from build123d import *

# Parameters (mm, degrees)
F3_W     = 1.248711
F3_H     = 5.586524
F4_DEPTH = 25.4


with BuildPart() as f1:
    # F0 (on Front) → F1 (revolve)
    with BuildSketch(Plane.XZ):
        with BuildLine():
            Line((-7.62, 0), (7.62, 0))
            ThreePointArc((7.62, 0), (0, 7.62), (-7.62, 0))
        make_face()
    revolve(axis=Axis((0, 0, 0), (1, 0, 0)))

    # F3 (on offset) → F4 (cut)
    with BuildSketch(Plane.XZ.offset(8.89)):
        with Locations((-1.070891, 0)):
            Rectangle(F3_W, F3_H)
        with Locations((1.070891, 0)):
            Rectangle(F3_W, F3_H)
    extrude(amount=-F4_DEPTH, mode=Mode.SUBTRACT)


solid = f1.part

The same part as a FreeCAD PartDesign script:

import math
import FreeCAD as App
import Part
import Sketcher
from FreeCAD import Vector
Q = App.Units.Quantity

doc = App.newDocument("Part")
body = doc.addObject("PartDesign::Body", "Body")

sketch1 = doc.addObject("Sketcher::SketchObject", "Sketch")
body.addObject(sketch1)
sketch1.AttachmentSupport = (doc.XZ_Plane, [""])
sketch1.MapMode = "FlatFace"
sketch1.addGeometry([
    Part.LineSegment(Vector(-8, 0, 0), Vector(8, 0, 0)),
    Part.ArcOfCircle(Part.Circle(Vector(0, 0, 0), Vector(0, 0, 1), 8), math.radians(0), math.radians(180)),
], False)
sketch1.addConstraint([
    Sketcher.Constraint("Coincident", 0, 1, 1, 2),
    Sketcher.Constraint("Coincident", 1, 1, 0, 2),
    Sketcher.Constraint("Horizontal", 0),
    Sketcher.Constraint("Coincident", 1, 3, -1, 1),
    Sketcher.Constraint("PointOnObject", 0, 1, -1),
    Sketcher.Constraint("Radius", 1, Q("0.3 in")),
])
revolution = doc.addObject("PartDesign::Revolution", "Revolution")
body.addObject(revolution)
revolution.Profile = sketch1
revolution.ReferenceAxis = (sketch1, ["H_Axis"])
revolution.Angle = 360

sketch2 = doc.addObject("Sketcher::SketchObject", "Sketch001")
body.addObject(sketch2)
sketch2.AttachmentSupport = (doc.XZ_Plane, [""])
sketch2.MapMode = "FlatFace"
sketch2.AttachmentOffset = App.Placement(Vector(0, 0, 0.35 * 25.4), App.Rotation())
sketch2.addGeometry([
    Part.LineSegment(Vector(-1.7, 2.8, 0), Vector(-1.7, -2.8, 0)),
    Part.LineSegment(Vector(-1.7, -2.8, 0), Vector(-0.4, -2.8, 0)),
    Part.LineSegment(Vector(-0.4, -2.8, 0), Vector(-0.4, 2.8, 0)),
    Part.LineSegment(Vector(-0.4, 2.8, 0), Vector(-1.7, 2.8, 0)),
    Part.LineSegment(Vector(0.4, 2.8, 0), Vector(0.4, -2.8, 0)),
    Part.LineSegment(Vector(0.4, -2.8, 0), Vector(1.7, -2.8, 0)),
    Part.LineSegment(Vector(1.7, -2.8, 0), Vector(1.7, 2.8, 0)),
    Part.LineSegment(Vector(1.7, 2.8, 0), Vector(0.4, 2.8, 0)),
], False)
sketch2.addConstraint([
    Sketcher.Constraint("Coincident", 0, 2, 1, 1),
    Sketcher.Constraint("Coincident", 1, 2, 2, 1),
    Sketcher.Constraint("Coincident", 2, 2, 3, 1),
    Sketcher.Constraint("Coincident", 3, 2, 0, 1),
    Sketcher.Constraint("Coincident", 4, 2, 5, 1),
    Sketcher.Constraint("Coincident", 5, 2, 6, 1),
    Sketcher.Constraint("Coincident", 6, 2, 7, 1),
    Sketcher.Constraint("Coincident", 7, 2, 4, 1),
    Sketcher.Constraint("Vertical", 0),
    Sketcher.Constraint("Horizontal", 1),
    Sketcher.Constraint("Vertical", 2),
    Sketcher.Constraint("Horizontal", 3),
    Sketcher.Constraint("Vertical", 4),
    Sketcher.Constraint("Horizontal", 5),
    Sketcher.Constraint("Vertical", 6),
    Sketcher.Constraint("Horizontal", 7),
    Sketcher.Constraint("Symmetric", 2, 2, 4, 2, -1, 1),
    Sketcher.Constraint("Symmetric", 0, 2, 6, 2, -1, 1),
    Sketcher.Constraint("Horizontal", 1, 2, 4, 2),
    Sketcher.Constraint("DistanceX", 1, 1, 1, 2, 1.248711),
    Sketcher.Constraint("DistanceY", 0, 2, 0, 1, 5.586524),
    Sketcher.Constraint("DistanceX", 1, 2, 4, 2, 0.893071),
])
pocket1 = doc.addObject("PartDesign::Pocket", "Pocket")
body.addObject(pocket1)
pocket1.Profile = sketch2
pocket1.Length = Q("1 in")

doc.recompute()
